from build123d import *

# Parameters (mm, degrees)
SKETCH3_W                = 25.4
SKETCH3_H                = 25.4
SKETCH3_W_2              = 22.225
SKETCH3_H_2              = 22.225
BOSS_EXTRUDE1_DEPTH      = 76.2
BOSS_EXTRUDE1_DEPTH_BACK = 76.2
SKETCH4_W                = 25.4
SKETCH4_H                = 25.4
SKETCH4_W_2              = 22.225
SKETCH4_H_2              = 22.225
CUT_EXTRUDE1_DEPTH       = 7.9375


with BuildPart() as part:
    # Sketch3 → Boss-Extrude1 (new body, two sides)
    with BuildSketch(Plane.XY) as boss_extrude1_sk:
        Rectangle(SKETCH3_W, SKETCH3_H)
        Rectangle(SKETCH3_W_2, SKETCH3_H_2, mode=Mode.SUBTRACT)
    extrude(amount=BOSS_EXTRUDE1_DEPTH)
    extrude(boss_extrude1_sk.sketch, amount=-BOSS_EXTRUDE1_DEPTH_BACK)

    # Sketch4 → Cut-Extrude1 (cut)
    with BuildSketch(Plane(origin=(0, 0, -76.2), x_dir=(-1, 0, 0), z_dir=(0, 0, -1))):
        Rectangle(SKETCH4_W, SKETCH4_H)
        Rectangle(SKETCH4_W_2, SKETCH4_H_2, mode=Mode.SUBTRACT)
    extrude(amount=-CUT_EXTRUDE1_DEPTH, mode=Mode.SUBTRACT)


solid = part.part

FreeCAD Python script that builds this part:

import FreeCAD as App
import Part
import Sketcher
from FreeCAD import Vector
Q = App.Units.Quantity


def add_polygon(sketch, points):
    """Adds a closed chain of lines whose ends are joined by coincident constraints."""
    first, n = sketch.GeometryCount, len(points)
    for a, b in zip(points, points[1:] + points[:1]):
        sketch.addGeometry(Part.LineSegment(App.Vector(*a, 0), App.Vector(*b, 0)), False)
    for i in range(n):
        sketch.addConstraint(Sketcher.Constraint("Coincident", first + i, 2, first + (i + 1) % n, 1))

doc = App.newDocument("Part")
params = doc.addObject("Spreadsheet::Sheet", "Params")
for row, (alias, value) in enumerate([
    ("sketch1_width", "1 in"),
    ("sketch1_width2", "0.875 in"),
    ("pad1_length", "3 in"),
    ("pad1_length2", "3 in"),
    ("sketch2_width", "1 in"),
    ("sketch2_width2", "0.875 in"),
    ("pocket1_length", "0.3125 in"),
], start=1):
    params.set(f"A{row}", alias)
    params.set(f"B{row}", "=" + value)
    params.setAlias(f"B{row}", alias)

body = doc.addObject("PartDesign::Body", "Body")

sketch1 = body.newObject("Sketcher::SketchObject", "Sketch")
sketch1.AttachmentSupport = (doc.getObject("XY_Plane"), [""])
sketch1.MapMode = "FlatFace"
add_polygon(sketch1, [(-12.7, 12.7), (-12.7, -12.7), (12.7, -12.7), (12.7, 12.7)])
add_polygon(sketch1, [(11.1125, -11.1125), (-11.1125, -11.1125), (-11.1125, 11.1125), (11.1125, 11.1125)])
sketch1.addConstraint(Sketcher.Constraint("Vertical", 0))
sketch1.addConstraint(Sketcher.Constraint("Horizontal", 1))
sketch1.addConstraint(Sketcher.Constraint("Vertical", 2))
sketch1.addConstraint(Sketcher.Constraint("Horizontal", 3))
sketch1.addConstraint(Sketcher.Constraint("Horizontal", 4))
sketch1.addConstraint(Sketcher.Constraint("Vertical", 5))
sketch1.addConstraint(Sketcher.Constraint("Horizontal", 6))
sketch1.addConstraint(Sketcher.Constraint("Vertical", 7))
sketch1.addConstraint(Sketcher.Constraint("Symmetric", 0, 2, 2, 2, -1, 1))
sketch1.addConstraint(Sketcher.Constraint("Symmetric", 4, 2, 6, 2, -1, 1))
sketch1.addConstraint(Sketcher.Constraint("Equal", 3, 0))
sketch1.addConstraint(Sketcher.Constraint("Equal", 6, 5))
sketch1.addConstraint(Sketcher.Constraint("DistanceX", 1, 1, 1, 2, Q("1 in")))
sketch1.addConstraint(Sketcher.Constraint("DistanceX", 4, 2, 4, 1, Q("0.875 in")))
sketch1.setExpression("Constraints[20]", "Params.sketch1_width")
sketch1.setExpression("Constraints[21]", "Params.sketch1_width2")
pad1 = body.newObject("PartDesign::Pad", "Pad")
pad1.Profile = sketch1
pad1.Type = "TwoLengths"
pad1.setExpression("Length", "Params.pad1_length")
pad1.setExpression("Length2", "Params.pad1_length2")

sketch2 = body.newObject("Sketcher::SketchObject", "Sketch001")
sketch2.AttachmentSupport = (doc.getObject("XY_Plane"), [""])
sketch2.MapMode = "FlatFace"
sketch2.AttachmentOffset = App.Placement(Vector(0, 0, -3 * 25.4), App.Rotation())
add_polygon(sketch2, [(12.7, 12.7), (12.7, -12.7), (-12.7, -12.7), (-12.7, 12.7)])
add_polygon(sketch2, [(-11.1125, -11.1125), (11.1125, -11.1125), (11.1125, 11.1125), (-11.1125, 11.1125)])
sketch2.addConstraint(Sketcher.Constraint("Vertical", 0))
sketch2.addConstraint(Sketcher.Constraint("Horizontal", 1))
sketch2.addConstraint(Sketcher.Constraint("Vertical", 2))
sketch2.addConstraint(Sketcher.Constraint("Horizontal", 3))
sketch2.addConstraint(Sketcher.Constraint("Horizontal", 4))
sketch2.addConstraint(Sketcher.Constraint("Vertical", 5))
sketch2.addConstraint(Sketcher.Constraint("Horizontal", 6))
sketch2.addConstraint(Sketcher.Constraint("Vertical", 7))
sketch2.addConstraint(Sketcher.Constraint("Symmetric", 0, 2, 2, 2, -1, 1))
sketch2.addConstraint(Sketcher.Constraint("Symmetric", 4, 2, 6, 2, -1, 1))
sketch2.addConstraint(Sketcher.Constraint("Equal", 3, 0))
sketch2.addConstraint(Sketcher.Constraint("Equal", 6, 5))
sketch2.addConstraint(Sketcher.Constraint("DistanceX", 1, 2, 1, 1, Q("1 in")))
sketch2.addConstraint(Sketcher.Constraint("DistanceX", 4, 1, 4, 2, Q("0.875 in")))
sketch2.setExpression("Constraints[20]", "Params.sketch2_width")
sketch2.setExpression("Constraints[21]", "Params.sketch2_width2")
pocket1 = body.newObject("PartDesign::Pocket", "Pocket")
pocket1.Profile = sketch2
pocket1.setExpression("Length", "Params.pocket1_length")
pocket1.Reversed = True

doc.recompute()
